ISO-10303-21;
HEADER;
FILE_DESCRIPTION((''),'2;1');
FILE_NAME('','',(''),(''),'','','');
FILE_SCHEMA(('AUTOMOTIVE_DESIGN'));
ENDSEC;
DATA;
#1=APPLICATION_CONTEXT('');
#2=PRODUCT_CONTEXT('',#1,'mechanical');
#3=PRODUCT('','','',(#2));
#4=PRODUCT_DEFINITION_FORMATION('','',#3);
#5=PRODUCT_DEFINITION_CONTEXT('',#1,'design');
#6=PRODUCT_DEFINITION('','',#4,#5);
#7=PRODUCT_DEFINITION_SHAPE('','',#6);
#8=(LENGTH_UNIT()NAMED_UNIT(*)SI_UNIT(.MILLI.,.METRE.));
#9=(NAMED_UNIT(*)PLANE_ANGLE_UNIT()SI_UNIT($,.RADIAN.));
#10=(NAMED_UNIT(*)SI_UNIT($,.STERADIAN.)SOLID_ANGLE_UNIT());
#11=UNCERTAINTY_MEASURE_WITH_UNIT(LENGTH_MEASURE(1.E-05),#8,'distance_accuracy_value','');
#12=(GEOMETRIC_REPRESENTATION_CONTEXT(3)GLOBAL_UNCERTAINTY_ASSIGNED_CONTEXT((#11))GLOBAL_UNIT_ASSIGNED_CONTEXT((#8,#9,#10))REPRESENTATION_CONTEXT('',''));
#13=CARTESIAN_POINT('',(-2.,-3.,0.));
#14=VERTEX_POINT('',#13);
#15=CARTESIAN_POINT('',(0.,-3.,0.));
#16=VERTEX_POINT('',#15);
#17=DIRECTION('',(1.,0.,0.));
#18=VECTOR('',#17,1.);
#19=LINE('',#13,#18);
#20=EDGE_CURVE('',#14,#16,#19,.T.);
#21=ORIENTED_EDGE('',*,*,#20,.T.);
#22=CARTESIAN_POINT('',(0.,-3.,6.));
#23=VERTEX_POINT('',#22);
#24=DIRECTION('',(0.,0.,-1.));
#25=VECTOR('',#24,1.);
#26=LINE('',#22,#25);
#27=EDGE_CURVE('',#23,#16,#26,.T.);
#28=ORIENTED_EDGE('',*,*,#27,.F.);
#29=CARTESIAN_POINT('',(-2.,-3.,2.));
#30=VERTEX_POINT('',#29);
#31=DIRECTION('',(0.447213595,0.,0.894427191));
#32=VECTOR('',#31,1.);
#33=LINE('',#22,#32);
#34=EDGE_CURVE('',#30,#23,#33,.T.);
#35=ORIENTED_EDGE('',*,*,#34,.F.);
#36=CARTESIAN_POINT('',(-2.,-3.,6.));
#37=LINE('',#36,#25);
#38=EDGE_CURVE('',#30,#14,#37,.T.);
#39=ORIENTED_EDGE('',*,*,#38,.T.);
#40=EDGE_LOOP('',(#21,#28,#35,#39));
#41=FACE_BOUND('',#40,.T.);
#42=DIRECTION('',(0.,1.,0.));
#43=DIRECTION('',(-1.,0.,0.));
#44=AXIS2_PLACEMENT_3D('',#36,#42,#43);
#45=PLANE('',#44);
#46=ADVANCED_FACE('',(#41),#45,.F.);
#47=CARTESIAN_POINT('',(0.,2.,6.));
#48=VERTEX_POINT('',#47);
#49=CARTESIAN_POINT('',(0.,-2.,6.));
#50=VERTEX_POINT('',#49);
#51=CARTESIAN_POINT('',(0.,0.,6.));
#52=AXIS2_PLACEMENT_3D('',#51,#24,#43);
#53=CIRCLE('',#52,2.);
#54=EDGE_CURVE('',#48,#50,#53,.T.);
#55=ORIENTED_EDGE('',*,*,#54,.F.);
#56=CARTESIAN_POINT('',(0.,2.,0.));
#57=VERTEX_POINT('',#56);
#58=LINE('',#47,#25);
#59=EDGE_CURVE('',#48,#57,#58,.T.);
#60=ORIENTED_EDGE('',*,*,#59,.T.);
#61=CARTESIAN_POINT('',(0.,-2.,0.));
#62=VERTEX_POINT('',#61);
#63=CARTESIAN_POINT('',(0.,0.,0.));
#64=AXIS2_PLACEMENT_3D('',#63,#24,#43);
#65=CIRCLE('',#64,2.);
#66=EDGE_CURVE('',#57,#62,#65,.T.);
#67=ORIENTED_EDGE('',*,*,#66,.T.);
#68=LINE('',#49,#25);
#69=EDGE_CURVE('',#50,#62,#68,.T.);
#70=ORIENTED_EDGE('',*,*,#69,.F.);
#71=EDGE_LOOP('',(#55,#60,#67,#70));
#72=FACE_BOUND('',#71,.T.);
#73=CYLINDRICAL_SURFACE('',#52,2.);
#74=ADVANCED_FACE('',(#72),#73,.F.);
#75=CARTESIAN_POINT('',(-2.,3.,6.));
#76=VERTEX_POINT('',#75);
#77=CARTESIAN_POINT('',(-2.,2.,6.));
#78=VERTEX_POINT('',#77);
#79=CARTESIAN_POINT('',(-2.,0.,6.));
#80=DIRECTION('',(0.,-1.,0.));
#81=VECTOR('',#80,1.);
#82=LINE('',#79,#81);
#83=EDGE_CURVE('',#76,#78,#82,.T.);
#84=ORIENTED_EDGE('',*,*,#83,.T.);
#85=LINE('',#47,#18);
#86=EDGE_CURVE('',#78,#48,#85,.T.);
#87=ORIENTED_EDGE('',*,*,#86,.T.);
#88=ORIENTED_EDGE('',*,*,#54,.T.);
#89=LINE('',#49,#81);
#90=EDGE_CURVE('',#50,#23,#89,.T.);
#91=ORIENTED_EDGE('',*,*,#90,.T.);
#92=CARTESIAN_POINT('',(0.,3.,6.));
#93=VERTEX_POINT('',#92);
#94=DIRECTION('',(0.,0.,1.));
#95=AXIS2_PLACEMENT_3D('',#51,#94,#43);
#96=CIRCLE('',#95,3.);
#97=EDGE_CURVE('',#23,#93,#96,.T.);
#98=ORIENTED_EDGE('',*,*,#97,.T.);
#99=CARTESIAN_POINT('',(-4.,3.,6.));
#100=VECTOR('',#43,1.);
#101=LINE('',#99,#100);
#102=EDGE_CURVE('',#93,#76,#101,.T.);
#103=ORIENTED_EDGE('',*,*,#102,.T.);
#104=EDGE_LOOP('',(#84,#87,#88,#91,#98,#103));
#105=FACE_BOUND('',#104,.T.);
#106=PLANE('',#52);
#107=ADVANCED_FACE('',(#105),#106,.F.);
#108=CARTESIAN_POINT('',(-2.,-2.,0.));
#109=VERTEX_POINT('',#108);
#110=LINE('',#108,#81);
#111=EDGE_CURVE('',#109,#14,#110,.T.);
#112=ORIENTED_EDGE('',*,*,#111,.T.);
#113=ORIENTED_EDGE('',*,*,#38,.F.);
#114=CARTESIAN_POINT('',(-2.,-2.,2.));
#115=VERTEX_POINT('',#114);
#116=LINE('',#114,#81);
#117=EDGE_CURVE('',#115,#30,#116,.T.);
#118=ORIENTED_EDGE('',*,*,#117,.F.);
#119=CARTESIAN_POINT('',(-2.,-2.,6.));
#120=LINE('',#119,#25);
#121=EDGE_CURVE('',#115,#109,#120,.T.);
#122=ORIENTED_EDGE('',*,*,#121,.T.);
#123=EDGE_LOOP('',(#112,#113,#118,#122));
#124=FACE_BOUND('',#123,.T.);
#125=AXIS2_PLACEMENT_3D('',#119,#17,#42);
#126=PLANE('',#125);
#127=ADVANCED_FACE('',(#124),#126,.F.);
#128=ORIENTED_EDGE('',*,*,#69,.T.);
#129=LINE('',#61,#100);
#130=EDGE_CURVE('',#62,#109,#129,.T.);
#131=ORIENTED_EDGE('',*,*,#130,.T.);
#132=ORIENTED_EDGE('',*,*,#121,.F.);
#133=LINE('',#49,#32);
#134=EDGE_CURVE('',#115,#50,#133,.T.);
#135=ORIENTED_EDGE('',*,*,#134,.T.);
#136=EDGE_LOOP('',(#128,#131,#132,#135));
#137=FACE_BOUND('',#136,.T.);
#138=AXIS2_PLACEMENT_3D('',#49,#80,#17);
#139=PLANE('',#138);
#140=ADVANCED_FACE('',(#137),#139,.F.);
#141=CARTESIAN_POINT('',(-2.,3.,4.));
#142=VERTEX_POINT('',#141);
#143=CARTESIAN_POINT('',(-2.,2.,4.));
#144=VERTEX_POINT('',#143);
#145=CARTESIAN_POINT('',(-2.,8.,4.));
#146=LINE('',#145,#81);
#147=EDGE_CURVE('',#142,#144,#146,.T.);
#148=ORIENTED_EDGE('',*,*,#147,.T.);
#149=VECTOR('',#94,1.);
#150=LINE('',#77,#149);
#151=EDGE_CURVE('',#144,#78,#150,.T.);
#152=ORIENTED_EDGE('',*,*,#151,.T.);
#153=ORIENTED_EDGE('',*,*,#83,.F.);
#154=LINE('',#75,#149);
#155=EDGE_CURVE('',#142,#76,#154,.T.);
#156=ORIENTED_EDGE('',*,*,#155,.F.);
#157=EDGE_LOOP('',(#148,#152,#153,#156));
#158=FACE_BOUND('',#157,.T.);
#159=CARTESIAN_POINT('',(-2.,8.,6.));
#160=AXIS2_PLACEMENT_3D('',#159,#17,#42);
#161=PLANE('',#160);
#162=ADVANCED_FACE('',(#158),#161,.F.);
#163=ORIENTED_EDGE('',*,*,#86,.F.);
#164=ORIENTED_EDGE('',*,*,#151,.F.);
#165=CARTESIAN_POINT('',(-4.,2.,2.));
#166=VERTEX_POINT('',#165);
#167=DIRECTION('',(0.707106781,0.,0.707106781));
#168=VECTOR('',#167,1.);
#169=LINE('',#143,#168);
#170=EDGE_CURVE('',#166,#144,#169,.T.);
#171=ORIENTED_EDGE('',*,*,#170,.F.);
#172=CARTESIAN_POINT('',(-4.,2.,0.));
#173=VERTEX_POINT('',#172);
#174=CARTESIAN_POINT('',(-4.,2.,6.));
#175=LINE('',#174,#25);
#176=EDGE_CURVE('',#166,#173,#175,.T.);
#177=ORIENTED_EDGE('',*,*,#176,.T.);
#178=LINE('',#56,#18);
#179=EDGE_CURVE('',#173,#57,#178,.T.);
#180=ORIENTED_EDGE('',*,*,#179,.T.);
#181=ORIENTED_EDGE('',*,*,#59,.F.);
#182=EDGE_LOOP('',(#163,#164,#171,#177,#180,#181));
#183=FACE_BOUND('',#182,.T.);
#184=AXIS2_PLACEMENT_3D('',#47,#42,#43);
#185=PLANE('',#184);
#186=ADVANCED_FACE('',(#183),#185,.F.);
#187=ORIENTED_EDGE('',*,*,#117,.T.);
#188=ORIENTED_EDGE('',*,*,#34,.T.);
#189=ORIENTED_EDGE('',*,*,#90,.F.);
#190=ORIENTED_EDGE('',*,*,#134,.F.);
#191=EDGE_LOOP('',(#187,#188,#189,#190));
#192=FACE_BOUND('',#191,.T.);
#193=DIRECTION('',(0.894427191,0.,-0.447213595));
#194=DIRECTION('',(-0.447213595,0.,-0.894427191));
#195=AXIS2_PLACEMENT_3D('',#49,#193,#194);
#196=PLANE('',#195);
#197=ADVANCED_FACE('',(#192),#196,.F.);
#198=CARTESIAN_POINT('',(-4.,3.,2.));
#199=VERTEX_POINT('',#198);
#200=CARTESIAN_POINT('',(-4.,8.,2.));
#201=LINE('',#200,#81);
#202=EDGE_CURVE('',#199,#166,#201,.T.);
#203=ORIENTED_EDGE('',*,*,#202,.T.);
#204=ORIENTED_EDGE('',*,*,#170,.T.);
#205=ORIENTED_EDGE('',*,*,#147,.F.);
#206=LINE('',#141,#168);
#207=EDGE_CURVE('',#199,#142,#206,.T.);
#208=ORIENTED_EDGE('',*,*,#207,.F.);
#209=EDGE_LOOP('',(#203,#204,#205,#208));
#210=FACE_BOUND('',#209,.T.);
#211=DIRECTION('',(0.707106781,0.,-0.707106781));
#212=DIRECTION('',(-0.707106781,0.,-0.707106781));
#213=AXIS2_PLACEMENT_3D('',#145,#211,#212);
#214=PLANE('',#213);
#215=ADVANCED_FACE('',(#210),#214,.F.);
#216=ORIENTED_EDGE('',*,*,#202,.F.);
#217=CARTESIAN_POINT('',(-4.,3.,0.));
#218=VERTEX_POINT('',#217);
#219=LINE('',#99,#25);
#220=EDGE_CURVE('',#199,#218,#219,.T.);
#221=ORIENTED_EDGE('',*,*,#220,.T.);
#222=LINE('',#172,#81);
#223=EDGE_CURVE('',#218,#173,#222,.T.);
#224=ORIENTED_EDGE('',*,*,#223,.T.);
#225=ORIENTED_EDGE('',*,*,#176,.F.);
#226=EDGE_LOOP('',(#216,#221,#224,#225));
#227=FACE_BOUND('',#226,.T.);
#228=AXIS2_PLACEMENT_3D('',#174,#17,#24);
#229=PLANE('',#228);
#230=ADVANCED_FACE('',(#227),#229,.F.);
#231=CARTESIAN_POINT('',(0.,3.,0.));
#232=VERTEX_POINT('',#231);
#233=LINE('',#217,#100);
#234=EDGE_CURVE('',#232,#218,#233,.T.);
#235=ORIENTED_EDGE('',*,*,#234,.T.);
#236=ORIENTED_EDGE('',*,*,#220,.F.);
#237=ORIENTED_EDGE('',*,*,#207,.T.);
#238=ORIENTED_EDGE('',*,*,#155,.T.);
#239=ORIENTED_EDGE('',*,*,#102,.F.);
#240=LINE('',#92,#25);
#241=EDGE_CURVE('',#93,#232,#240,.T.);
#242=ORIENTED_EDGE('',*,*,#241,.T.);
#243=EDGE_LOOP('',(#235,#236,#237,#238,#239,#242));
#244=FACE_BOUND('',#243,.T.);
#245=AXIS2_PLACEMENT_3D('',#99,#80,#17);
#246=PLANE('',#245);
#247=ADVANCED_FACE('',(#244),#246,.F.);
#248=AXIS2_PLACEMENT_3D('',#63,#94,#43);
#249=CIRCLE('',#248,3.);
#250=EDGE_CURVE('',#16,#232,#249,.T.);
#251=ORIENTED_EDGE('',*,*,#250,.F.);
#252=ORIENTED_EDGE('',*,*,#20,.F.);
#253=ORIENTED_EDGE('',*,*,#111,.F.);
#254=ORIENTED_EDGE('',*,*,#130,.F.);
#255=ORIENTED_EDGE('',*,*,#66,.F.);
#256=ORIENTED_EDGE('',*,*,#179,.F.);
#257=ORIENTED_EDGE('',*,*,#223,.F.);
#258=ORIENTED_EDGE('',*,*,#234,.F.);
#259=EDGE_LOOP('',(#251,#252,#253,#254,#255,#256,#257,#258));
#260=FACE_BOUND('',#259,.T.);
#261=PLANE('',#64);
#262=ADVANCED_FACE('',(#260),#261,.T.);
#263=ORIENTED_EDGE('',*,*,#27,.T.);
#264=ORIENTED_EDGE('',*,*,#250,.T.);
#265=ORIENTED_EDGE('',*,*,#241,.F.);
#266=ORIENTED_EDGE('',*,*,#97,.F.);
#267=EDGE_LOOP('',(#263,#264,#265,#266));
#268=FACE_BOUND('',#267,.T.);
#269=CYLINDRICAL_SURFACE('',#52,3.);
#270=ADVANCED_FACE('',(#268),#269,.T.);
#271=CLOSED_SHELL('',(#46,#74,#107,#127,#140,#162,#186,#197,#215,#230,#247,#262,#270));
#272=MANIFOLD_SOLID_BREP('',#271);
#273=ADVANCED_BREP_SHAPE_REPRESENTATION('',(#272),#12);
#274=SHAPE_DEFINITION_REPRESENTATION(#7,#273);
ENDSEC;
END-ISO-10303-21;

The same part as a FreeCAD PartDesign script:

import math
import FreeCAD as App
import Part
import Sketcher
from FreeCAD import Vector
Q = App.Units.Quantity

doc = App.newDocument("Part")
body = doc.addObject("PartDesign::Body", "Body")

sketch1 = doc.addObject("Sketcher::SketchObject", "Sketch")
body.addObject(sketch1)
sketch1.AttachmentSupport = (doc.XY_Plane, [""])
sketch1.MapMode = "FlatFace"
sketch1.addGeometry([
    Part.LineSegment(Vector(-4, 2, 0), Vector(0, 2, 0)),
    Part.ArcOfCircle(Part.Circle(Vector(0, 0, 0), Vector(0, 0, 1), 2), math.radians(-90), math.radians(90)),
    Part.LineSegment(Vector(0, -2, 0), Vector(-2, -2, 0)),
    Part.LineSegment(Vector(-2, -2, 0), Vector(-2, -3, 0)),
    Part.LineSegment(Vector(-2, -3, 0), Vector(0, -3, 0)),
    Part.ArcOfCircle(Part.Circle(Vector(0, 0, 0), Vector(0, 0, 1), 3), math.radians(-90), math.radians(90)),
    Part.LineSegment(Vector(0, 3, 0), Vector(-4, 3, 0)),
    Part.LineSegment(Vector(-4, 3, 0), Vector(-4, 2, 0)),
], False)
sketch1.addConstraint([
    Sketcher.Constraint("Tangent", 0, 2, 1, 2),
    Sketcher.Constraint("Tangent", 1, 1, 2, 1),
    Sketcher.Constraint("Coincident", 2, 2, 3, 1),
    Sketcher.Constraint("Coincident", 3, 2, 4, 1),
    Sketcher.Constraint("Tangent", 4, 2, 5, 1),
    Sketcher.Constraint("Tangent", 5, 2, 6, 1),
    Sketcher.Constraint("Coincident", 6, 2, 7, 1),
    Sketcher.Constraint("Coincident", 7, 2, 0, 1),
    Sketcher.Constraint("Horizontal", 0),
    Sketcher.Constraint("Horizontal", 2),
    Sketcher.Constraint("Vertical", 3),
    Sketcher.Constraint("Horizontal", 4),
    Sketcher.Constraint("Horizontal", 6),
    Sketcher.Constraint("Vertical", 7),
    Sketcher.Constraint("Coincident", 1, 3, -1, 1),
    Sketcher.Constraint("Coincident", 5, 3, -1, 1),
    Sketcher.Constraint("Radius", 1, Q("2 mm")),
    Sketcher.Constraint("Radius", 5, Q("3 mm")),
    Sketcher.Constraint("DistanceX", 0, 1, 0, 2, Q("4 mm")),
    Sketcher.Constraint("DistanceX", 2, 2, 2, 1, Q("2 mm")),
])
pad1 = doc.addObject("PartDesign::Pad", "Pad")
body.addObject(pad1)
pad1.Profile = sketch1
pad1.Length = 6

sketch2 = doc.addObject("Sketcher::SketchObject", "Sketch001")
body.addObject(sketch2)
sketch2.AttachmentSupport = (doc.XZ_Plane, [""])
sketch2.MapMode = "FlatFace"
sketch2.AttachmentOffset = App.Placement(Vector(0, 0, -2), App.Rotation())
sketch2.addGeometry([
    Part.LineSegment(Vector(-2, 4, 0), Vector(-2, 6, 0)),
    Part.LineSegment(Vector(-2, 6, 0), Vector(-4, 6, 0)),
    Part.LineSegment(Vector(-4, 6, 0), Vector(-4, 2, 0)),
    Part.LineSegment(Vector(-4, 2, 0), Vector(-2, 4, 0)),
], False)
sketch2.addConstraint([
    Sketcher.Constraint("Coincident", 0, 2, 1, 1),
    Sketcher.Constraint("Coincident", 1, 2, 2, 1),
    Sketcher.Constraint("Coincident", 2, 2, 3, 1),
    Sketcher.Constraint("Coincident", 3, 2, 0, 1),
    Sketcher.Constraint("Vertical", 0),
    Sketcher.Constraint("Horizontal", 1),
    Sketcher.Constraint("Vertical", 2),
    Sketcher.Constraint("Equal", 1, 0),
    Sketcher.Constraint("DistanceX", 1, 2, 1, 1, Q("2 mm")),
    Sketcher.Constraint("DistanceY", 2, 2, 2, 1, Q("4 mm")),
    Sketcher.Constraint("DistanceX", 0, 2, -1, 1, Q("2 mm")),
    Sketcher.Constraint("DistanceY", -1, 1, 0, 2, Q("6 mm")),
])
pocket1 = doc.addObject("PartDesign::Pocket", "Pocket")
body.addObject(pocket1)
pocket1.Profile = sketch2
pocket1.Length = 6

sketch3 = doc.addObject("Sketcher::SketchObject", "Sketch002")
body.addObject(sketch3)
sketch3.AttachmentSupport = (doc.XZ_Plane, [""])
sketch3.MapMode = "FlatFace"
sketch3.AttachmentOffset = App.Placement(Vector(0, 0, 3), App.Rotation())
sketch3.addGeometry([
    Part.LineSegment(Vector(-2, 2, 0), Vector(0, 6, 0)),
    Part.LineSegment(Vector(0, 6, 0), Vector(-2, 6, 0)),
    Part.LineSegment(Vector(-2, 6, 0), Vector(-2, 2, 0)),
], False)
sketch3.addConstraint([
    Sketcher.Constraint("Coincident", 0, 2, 1, 1),
    Sketcher.Constraint("Coincident", 1, 2, 2, 1),
    Sketcher.Constraint("Coincident", 2, 2, 0, 1),
    Sketcher.Constraint("Horizontal", 1),
    Sketcher.Constraint("Vertical", 2),
    Sketcher.Constraint("PointOnObject", 0, 2, -2),
    Sketcher.Constraint("DistanceX", 1, 2, 1, 1, Q("2 mm")),
    Sketcher.Constraint("DistanceY", 2, 2, 2, 1, Q("4 mm")),
    Sketcher.Constraint("DistanceY", -1, 1, 0, 2, Q("6 mm")),
])
pocket2 = doc.addObject("PartDesign::Pocket", "Pocket001")
body.addObject(pocket2)
pocket2.Profile = sketch3
pocket2.Length = 1

doc.recompute()
